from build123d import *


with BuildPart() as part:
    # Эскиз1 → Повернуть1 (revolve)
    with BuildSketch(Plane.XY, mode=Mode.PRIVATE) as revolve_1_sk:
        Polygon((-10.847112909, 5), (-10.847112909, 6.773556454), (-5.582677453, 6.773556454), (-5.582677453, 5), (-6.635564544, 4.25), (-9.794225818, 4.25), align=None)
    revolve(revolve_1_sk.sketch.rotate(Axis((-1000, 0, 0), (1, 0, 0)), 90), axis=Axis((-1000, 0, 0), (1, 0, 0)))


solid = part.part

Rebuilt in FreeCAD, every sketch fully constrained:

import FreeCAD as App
import Part
import Sketcher
from FreeCAD import Vector


def add_polygon(sketch, points):
    """Adds a closed chain of lines whose ends are joined by coincident constraints."""
    first, n = sketch.GeometryCount, len(points)
    for a, b in zip(points, points[1:] + points[:1]):
        sketch.addGeometry(Part.LineSegment(App.Vector(*a, 0), App.Vector(*b, 0)), False)
    for i in range(n):
        sketch.addConstraint(Sketcher.Constraint("Coincident", first + i, 2, first + (i + 1) % n, 1))

doc = App.newDocument("Part")
params = doc.addObject("Spreadsheet::Sheet", "Params")
for row, (alias, value) in enumerate([
    ("revolution_angle", "360 deg"),
], start=1):
    params.set(f"A{row}", alias)
    params.set(f"B{row}", "=" + value)
    params.setAlias(f"B{row}", alias)

body = doc.addObject("PartDesign::Body", "Body")

sketch1 = body.newObject("Sketcher::SketchObject", "Sketch")
sketch1.AttachmentSupport = (doc.getObject("XY_Plane"), [""])
sketch1.MapMode = "FlatFace"
add_polygon(sketch1, [(-10.847113, 6.773556), (-10.847113, 5), (-9.794226, 4.25), (-6.635565, 4.25), (-5.582677, 5), (-5.582677, 6.773556)])
sketch1.addConstraint([
    Sketcher.Constraint("Vertical", 0),
    Sketcher.Constraint("Horizontal", 2),
    Sketcher.Constraint("Vertical", 4),
    Sketcher.Constraint("Horizontal", 5),
    Sketcher.Constraint("Horizontal", 0, 2, 3, 2),
    Sketcher.Constraint("Equal", 1, 3),
    Sketcher.Constraint("DistanceY", -1, 1, 0, 2, 5.0),
    Sketcher.Constraint("DistanceY", -1, 1, 1, 2, 4.25),
    Sketcher.Constraint("Distance", 1, 1.292699),
    Sketcher.Constraint("DistanceX", 2, 1, 2, 2, 3.158661),
    Sketcher.Constraint("DistanceY", 0, 2, 0, 1, 1.773556),
    Sketcher.Constraint("DistanceX", 0, 2, -1, 1, 10.847113),
])
revolution = body.newObject("PartDesign::Revolution", "Revolution")
revolution.Profile = sketch1
revolution.ReferenceAxis = (sketch1, ["H_Axis"])
revolution.setExpression("Angle", "Params.revolution_angle")

doc.recompute()
